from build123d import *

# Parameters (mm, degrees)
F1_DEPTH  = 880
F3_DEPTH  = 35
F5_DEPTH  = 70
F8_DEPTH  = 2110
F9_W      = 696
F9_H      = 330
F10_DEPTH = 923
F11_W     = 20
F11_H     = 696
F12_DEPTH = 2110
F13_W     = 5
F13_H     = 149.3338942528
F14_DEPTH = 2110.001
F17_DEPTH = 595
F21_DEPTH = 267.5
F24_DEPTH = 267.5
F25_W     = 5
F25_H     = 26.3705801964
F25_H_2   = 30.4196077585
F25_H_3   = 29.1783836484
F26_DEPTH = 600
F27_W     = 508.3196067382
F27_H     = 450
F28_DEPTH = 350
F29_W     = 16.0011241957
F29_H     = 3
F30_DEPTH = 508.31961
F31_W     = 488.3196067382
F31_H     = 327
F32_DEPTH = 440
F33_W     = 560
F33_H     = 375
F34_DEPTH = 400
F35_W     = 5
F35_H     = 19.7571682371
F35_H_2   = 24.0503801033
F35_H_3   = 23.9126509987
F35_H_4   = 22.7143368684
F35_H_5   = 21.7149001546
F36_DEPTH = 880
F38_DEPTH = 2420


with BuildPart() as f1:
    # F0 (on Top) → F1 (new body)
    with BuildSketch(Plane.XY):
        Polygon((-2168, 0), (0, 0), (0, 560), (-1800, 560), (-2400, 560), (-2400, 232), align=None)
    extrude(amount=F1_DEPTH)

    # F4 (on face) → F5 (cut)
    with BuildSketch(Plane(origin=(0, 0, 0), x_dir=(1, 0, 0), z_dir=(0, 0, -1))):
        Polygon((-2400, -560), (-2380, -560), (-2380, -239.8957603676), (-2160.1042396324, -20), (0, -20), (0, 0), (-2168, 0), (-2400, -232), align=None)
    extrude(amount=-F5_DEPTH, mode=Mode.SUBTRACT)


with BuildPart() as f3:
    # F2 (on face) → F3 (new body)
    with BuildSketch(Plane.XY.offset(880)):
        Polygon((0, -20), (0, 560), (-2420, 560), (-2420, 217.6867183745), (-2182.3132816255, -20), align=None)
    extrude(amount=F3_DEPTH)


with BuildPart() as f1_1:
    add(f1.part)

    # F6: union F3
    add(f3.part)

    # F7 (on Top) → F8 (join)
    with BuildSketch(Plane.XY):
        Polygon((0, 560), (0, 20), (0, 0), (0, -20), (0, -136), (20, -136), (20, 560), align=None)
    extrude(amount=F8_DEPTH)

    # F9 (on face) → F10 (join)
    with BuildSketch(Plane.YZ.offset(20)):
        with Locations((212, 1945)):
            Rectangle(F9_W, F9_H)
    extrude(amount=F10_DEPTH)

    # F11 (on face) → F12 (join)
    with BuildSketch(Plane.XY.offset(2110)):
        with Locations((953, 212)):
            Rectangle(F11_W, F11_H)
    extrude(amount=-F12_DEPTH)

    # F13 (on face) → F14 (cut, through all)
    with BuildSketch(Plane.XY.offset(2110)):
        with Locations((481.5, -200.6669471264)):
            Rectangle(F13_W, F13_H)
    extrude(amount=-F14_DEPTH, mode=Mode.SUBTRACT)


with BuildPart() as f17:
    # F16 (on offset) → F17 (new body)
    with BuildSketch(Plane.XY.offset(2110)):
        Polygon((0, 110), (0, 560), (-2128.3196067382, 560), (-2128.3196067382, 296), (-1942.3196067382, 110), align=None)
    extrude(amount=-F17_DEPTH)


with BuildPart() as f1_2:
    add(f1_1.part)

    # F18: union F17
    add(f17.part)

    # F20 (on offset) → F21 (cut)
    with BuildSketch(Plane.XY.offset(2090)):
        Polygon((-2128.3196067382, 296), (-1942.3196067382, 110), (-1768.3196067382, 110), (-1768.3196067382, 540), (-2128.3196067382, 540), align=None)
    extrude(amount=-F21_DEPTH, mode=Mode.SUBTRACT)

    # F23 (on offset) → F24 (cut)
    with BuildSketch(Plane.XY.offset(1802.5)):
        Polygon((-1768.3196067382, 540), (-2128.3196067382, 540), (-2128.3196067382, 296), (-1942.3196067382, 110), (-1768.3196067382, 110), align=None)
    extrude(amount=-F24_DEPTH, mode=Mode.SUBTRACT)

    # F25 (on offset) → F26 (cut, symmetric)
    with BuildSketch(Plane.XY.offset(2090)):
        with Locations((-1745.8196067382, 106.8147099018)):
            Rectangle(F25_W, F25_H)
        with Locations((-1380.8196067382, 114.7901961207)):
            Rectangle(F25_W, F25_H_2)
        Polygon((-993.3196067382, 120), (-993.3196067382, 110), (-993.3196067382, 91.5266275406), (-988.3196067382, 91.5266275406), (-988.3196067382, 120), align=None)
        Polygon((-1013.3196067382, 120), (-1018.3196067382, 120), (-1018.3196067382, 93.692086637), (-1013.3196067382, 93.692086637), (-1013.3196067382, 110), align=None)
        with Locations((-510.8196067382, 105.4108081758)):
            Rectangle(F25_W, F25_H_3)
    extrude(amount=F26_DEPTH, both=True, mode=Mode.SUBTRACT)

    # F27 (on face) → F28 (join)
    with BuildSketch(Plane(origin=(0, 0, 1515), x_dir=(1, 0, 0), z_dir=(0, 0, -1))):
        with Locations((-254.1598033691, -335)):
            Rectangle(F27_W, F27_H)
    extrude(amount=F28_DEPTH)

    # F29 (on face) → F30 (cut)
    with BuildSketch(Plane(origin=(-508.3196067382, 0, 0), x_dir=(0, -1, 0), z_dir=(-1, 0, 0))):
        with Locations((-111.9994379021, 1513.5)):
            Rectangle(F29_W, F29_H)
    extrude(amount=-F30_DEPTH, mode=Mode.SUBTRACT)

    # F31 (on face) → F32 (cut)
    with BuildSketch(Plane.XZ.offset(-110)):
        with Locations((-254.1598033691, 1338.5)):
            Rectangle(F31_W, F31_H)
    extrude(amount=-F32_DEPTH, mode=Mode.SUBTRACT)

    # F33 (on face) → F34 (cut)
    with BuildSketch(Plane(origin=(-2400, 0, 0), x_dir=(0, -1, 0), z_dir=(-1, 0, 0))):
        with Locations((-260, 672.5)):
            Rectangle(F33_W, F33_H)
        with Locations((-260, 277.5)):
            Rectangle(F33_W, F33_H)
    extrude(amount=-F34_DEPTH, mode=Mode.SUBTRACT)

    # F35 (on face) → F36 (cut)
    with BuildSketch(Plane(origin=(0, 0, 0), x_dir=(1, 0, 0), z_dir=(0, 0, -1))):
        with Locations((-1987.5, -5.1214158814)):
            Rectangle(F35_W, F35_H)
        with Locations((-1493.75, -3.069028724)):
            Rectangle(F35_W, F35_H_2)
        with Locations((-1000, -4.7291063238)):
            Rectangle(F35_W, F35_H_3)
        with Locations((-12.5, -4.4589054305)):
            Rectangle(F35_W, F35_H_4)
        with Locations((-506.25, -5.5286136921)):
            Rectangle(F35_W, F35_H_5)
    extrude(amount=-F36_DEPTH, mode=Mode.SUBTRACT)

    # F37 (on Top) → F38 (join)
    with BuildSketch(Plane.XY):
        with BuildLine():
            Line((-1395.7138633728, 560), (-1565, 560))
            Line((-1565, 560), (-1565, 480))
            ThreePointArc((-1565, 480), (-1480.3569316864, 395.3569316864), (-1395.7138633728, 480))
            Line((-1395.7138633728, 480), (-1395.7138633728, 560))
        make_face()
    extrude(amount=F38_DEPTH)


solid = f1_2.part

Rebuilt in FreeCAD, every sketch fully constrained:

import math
import FreeCAD as App
import Part
import Sketcher

V = App.Vector
Q = App.Units.Quantity

doc = App.newDocument("Part")
body = doc.addObject("PartDesign::Body", "Body")

# Sketch on XY plane
sketch1 = body.newObject("Sketcher::SketchObject", "Sketch")
sketch1.AttachmentSupport = (doc.getObject("XY_Plane"), [""])
sketch1.MapMode = "FlatFace"
sketch1.addGeometry(Part.LineSegment(V(-2168, 0, 0), V(0, 0, 0)), False)
sketch1.addGeometry(Part.LineSegment(V(0, 0, 0), V(0, 560, 0)), False)
sketch1.addGeometry(Part.LineSegment(V(0, 560, 0), V(-2400, 560, 0)), False)
sketch1.addGeometry(Part.LineSegment(V(-2400, 560, 0), V(-2400, 232, 0)), False)
sketch1.addGeometry(Part.LineSegment(V(-2400, 232, 0), V(-2168, 0, 0)), False)
sketch1.addConstraint(Sketcher.Constraint("Coincident", 0, 2, 1, 1))
sketch1.addConstraint(Sketcher.Constraint("Coincident", 1, 2, 2, 1))
sketch1.addConstraint(Sketcher.Constraint("Coincident", 2, 2, 3, 1))
sketch1.addConstraint(Sketcher.Constraint("Coincident", 3, 2, 4, 1))
sketch1.addConstraint(Sketcher.Constraint("Coincident", 4, 2, 0, 1))
sketch1.addConstraint(Sketcher.Constraint("Horizontal", 0))
sketch1.addConstraint(Sketcher.Constraint("Vertical", 1))
sketch1.addConstraint(Sketcher.Constraint("Horizontal", 2))
sketch1.addConstraint(Sketcher.Constraint("Vertical", 3))
sketch1.addConstraint(Sketcher.Constraint("Coincident", 0, 2, -1, 1))
sketch1.addConstraint(Sketcher.Constraint("DistanceX", 0, 1, 0, 2, 2168.0))
sketch1.addConstraint(Sketcher.Constraint("DistanceX", 2, 2, 2, 1, 2400.0))
sketch1.addConstraint(Sketcher.Constraint("DistanceY", 1, 1, 1, 2, 560.0))
sketch1.addConstraint(Sketcher.Constraint("DistanceY", 3, 2, 3, 1, 328.0))
pad1 = body.newObject("PartDesign::Pad", "Pad")
pad1.Profile = sketch1
pad1.Length = 880

# Sketch on XY plane
sketch2 = body.newObject("Sketcher::SketchObject", "Sketch001")
sketch2.AttachmentSupport = (doc.getObject("XY_Plane"), [""])
sketch2.MapMode = "FlatFace"
sketch2.addGeometry(Part.LineSegment(V(-2400, 560, 0), V(-2380, 560, 0)), False)
sketch2.addGeometry(Part.LineSegment(V(-2380, 560, 0), V(-2380, 240, 0)), False)
sketch2.addGeometry(Part.LineSegment(V(-2380, 240, 0), V(-2160, 20, 0)), False)
sketch2.addGeometry(Part.LineSegment(V(-2160, 20, 0), V(0, 20, 0)), False)
sketch2.addGeometry(Part.LineSegment(V(0, 20, 0), V(0, 0, 0)), False)
sketch2.addGeometry(Part.LineSegment(V(0, 0, 0), V(-2168, 0, 0)), False)
sketch2.addGeometry(Part.LineSegment(V(-2168, 0, 0), V(-2400, 232, 0)), False)
sketch2.addGeometry(Part.LineSegment(V(-2400, 232, 0), V(-2400, 560, 0)), False)
sketch2.addConstraint(Sketcher.Constraint("Coincident", 0, 2, 1, 1))
sketch2.addConstraint(Sketcher.Constraint("Coincident", 1, 2, 2, 1))
sketch2.addConstraint(Sketcher.Constraint("Coincident", 2, 2, 3, 1))
sketch2.addConstraint(Sketcher.Constraint("Coincident", 3, 2, 4, 1))
sketch2.addConstraint(Sketcher.Constraint("Coincident", 4, 2, 5, 1))
sketch2.addConstraint(Sketcher.Constraint("Coincident", 5, 2, 6, 1))
sketch2.addConstraint(Sketcher.Constraint("Coincident", 6, 2, 7, 1))
sketch2.addConstraint(Sketcher.Constraint("Coincident", 7, 2, 0, 1))
sketch2.addConstraint(Sketcher.Constraint("Horizontal", 0))
sketch2.addConstraint(Sketcher.Constraint("Vertical", 1))
sketch2.addConstraint(Sketcher.Constraint("Horizontal", 3))
sketch2.addConstraint(Sketcher.Constraint("Vertical", 4))
sketch2.addConstraint(Sketcher.Constraint("Horizontal", 5))
sketch2.addConstraint(Sketcher.Constraint("Vertical", 7))
sketch2.addConstraint(Sketcher.Constraint("Coincident", 4, 2, -1, 1))
sketch2.addConstraint(Sketcher.Constraint("Parallel", 2, 6))
sketch2.addConstraint(Sketcher.Constraint("Equal", 0, 4))
sketch2.addConstraint(Sketcher.Constraint("DistanceX", 0, 1, 0, 2, 20.0))
sketch2.addConstraint(Sketcher.Constraint("DistanceX", 5, 2, 5, 1, 2168.0))
sketch2.addConstraint(Sketcher.Constraint("DistanceY", 7, 1, 7, 2, 328.0))
sketch2.addConstraint(Sketcher.Constraint("Angle", 2, Q("-45 deg")))
sketch2.addConstraint(Sketcher.Constraint("DistanceX", 0, 2, -1, 1, 2380.0))
sketch2.addConstraint(Sketcher.Constraint("DistanceX", 3, 1, 3, 2, 2160.10424))
pocket1 = body.newObject("PartDesign::Pocket", "Pocket")
pocket1.Profile = sketch2
pocket1.Length = 70
pocket1.Reversed = True
body2 = doc.addObject("PartDesign::Body", "Body001")

# Sketch on XY plane
sketch3 = body2.newObject("Sketcher::SketchObject", "Sketch002")
sketch3.AttachmentSupport = (doc.getObject("XY_Plane001"), [""])
sketch3.MapMode = "FlatFace"
sketch3.AttachmentOffset = App.Placement(V(0, 0, 880), App.Rotation())
sketch3.addGeometry(Part.LineSegment(V(0, -20, 0), V(0, 560, 0)), False)
sketch3.addGeometry(Part.LineSegment(V(0, 560, 0), V(-2420, 560, 0)), False)
sketch3.addGeometry(Part.LineSegment(V(-2420, 560, 0), V(-2420, 218, 0)), False)
sketch3.addGeometry(Part.LineSegment(V(-2420, 218, 0), V(-2182, -20, 0)), False)
sketch3.addGeometry(Part.LineSegment(V(-2182, -20, 0), V(0, -20, 0)), False)
sketch3.addConstraint(Sketcher.Constraint("Coincident", 0, 2, 1, 1))
sketch3.addConstraint(Sketcher.Constraint("Coincident", 1, 2, 2, 1))
sketch3.addConstraint(Sketcher.Constraint("Coincident", 2, 2, 3, 1))
sketch3.addConstraint(Sketcher.Constraint("Coincident", 3, 2, 4, 1))
sketch3.addConstraint(Sketcher.Constraint("Coincident", 4, 2, 0, 1))
sketch3.addConstraint(Sketcher.Constraint("Vertical", 0))
sketch3.addConstraint(Sketcher.Constraint("Horizontal", 1))
sketch3.addConstraint(Sketcher.Constraint("Vertical", 2))
sketch3.addConstraint(Sketcher.Constraint("Horizontal", 4))
sketch3.addConstraint(Sketcher.Constraint("PointOnObject", 0, 2, -2))
sketch3.addConstraint(Sketcher.Constraint("DistanceX", 1, 2, 1, 1, 2420.0))
sketch3.addConstraint(Sketcher.Constraint("DistanceY", 0, 1, 0, 2, 580.0))
sketch3.addConstraint(Sketcher.Constraint("Angle", 3, Q("-45 deg")))
sketch3.addConstraint(Sketcher.Constraint("DistanceY", -1, 1, 0, 2, 560.0))
sketch3.addConstraint(Sketcher.Constraint("DistanceX", 4, 1, 4, 2, 2182.313282))
pad2 = body2.newObject("PartDesign::Pad", "Pad001")
pad2.Profile = sketch3
pad2.Length = 35
doc.recompute()

boolean = body.newObject("PartDesign::Boolean", "Boolean")
boolean.Type = "Fuse"
boolean.addObjects([body2])

# Sketch on XY plane
sketch4 = body.newObject("Sketcher::SketchObject", "Sketch003")
sketch4.AttachmentSupport = (doc.getObject("XY_Plane"), [""])
sketch4.MapMode = "FlatFace"
sketch4.addGeometry(Part.LineSegment(V(0, 560, 0), V(0, -136, 0)), False)
sketch4.addGeometry(Part.LineSegment(V(0, -136, 0), V(20, -136, 0)), False)
sketch4.addGeometry(Part.LineSegment(V(20, -136, 0), V(20, 560, 0)), False)
sketch4.addGeometry(Part.LineSegment(V(20, 560, 0), V(0, 560, 0)), False)
sketch4.addConstraint(Sketcher.Constraint("Coincident", 0, 2, 1, 1))
sketch4.addConstraint(Sketcher.Constraint("Coincident", 1, 2, 2, 1))
sketch4.addConstraint(Sketcher.Constraint("Coincident", 2, 2, 3, 1))
sketch4.addConstraint(Sketcher.Constraint("Coincident", 3, 2, 0, 1))
sketch4.addConstraint(Sketcher.Constraint("Vertical", 0))
sketch4.addConstraint(Sketcher.Constraint("Horizontal", 1))
sketch4.addConstraint(Sketcher.Constraint("Vertical", 2))
sketch4.addConstraint(Sketcher.Constraint("Horizontal", 3))
sketch4.addConstraint(Sketcher.Constraint("PointOnObject", 0, 2, -2))
sketch4.addConstraint(Sketcher.Constraint("DistanceX", 1, 1, 1, 2, 20.0))
sketch4.addConstraint(Sketcher.Constraint("DistanceY", 0, 2, 0, 1, 696.0))
sketch4.addConstraint(Sketcher.Constraint("DistanceY", 0, 2, -1, 1, 136.0))
pad3 = body.newObject("PartDesign::Pad", "Pad002")
pad3.Profile = sketch4
pad3.Length = 2110

# Sketch on YZ plane
sketch5 = body.newObject("Sketcher::SketchObject", "Sketch004")
sketch5.AttachmentSupport = (doc.getObject("YZ_Plane"), [""])
sketch5.MapMode = "FlatFace"
sketch5.AttachmentOffset = App.Placement(V(0, 0, 20), App.Rotation())
sketch5.addGeometry(Part.LineSegment(V(-136, 2110, 0), V(-136, 1780, 0)), False)
sketch5.addGeometry(Part.LineSegment(V(-136, 1780, 0), V(560, 1780, 0)), False)
sketch5.addGeometry(Part.LineSegment(V(560, 1780, 0), V(560, 2110, 0)), False)
sketch5.addGeometry(Part.LineSegment(V(560, 2110, 0), V(-136, 2110, 0)), False)
sketch5.addConstraint(Sketcher.Constraint("Coincident", 0, 2, 1, 1))
sketch5.addConstraint(Sketcher.Constraint("Coincident", 1, 2, 2, 1))
sketch5.addConstraint(Sketcher.Constraint("Coincident", 2, 2, 3, 1))
sketch5.addConstraint(Sketcher.Constraint("Coincident", 3, 2, 0, 1))
sketch5.addConstraint(Sketcher.Constraint("Vertical", 0))
sketch5.addConstraint(Sketcher.Constraint("Horizontal", 1))
sketch5.addConstraint(Sketcher.Constraint("Vertical", 2))
sketch5.addConstraint(Sketcher.Constraint("Horizontal", 3))
sketch5.addConstraint(Sketcher.Constraint("DistanceX", 1, 1, 1, 2, 696.0))
sketch5.addConstraint(Sketcher.Constraint("DistanceY", 0, 2, 0, 1, 330.0))
sketch5.addConstraint(Sketcher.Constraint("DistanceX", 0, 2, -1, 1, 136.0))
sketch5.addConstraint(Sketcher.Constraint("DistanceY", -1, 1, 0, 2, 1780.0))
pad4 = body.newObject("PartDesign::Pad", "Pad003")
pad4.Profile = sketch5
pad4.Length = 923

# Sketch on XY plane
sketch6 = body.newObject("Sketcher::SketchObject", "Sketch005")
sketch6.AttachmentSupport = (doc.getObject("XY_Plane"), [""])
sketch6.MapMode = "FlatFace"
sketch6.AttachmentOffset = App.Placement(V(0, 0, 2110), App.Rotation())
sketch6.addGeometry(Part.LineSegment(V(943, 560, 0), V(943, -136, 0)), False)
sketch6.addGeometry(Part.LineSegment(V(943, -136, 0), V(963, -136, 0)), False)
sketch6.addGeometry(Part.LineSegment(V(963, -136, 0), V(963, 560, 0)), False)
sketch6.addGeometry(Part.LineSegment(V(963, 560, 0), V(943, 560, 0)), False)
sketch6.addConstraint(Sketcher.Constraint("Coincident", 0, 2, 1, 1))
sketch6.addConstraint(Sketcher.Constraint("Coincident", 1, 2, 2, 1))
sketch6.addConstraint(Sketcher.Constraint("Coincident", 2, 2, 3, 1))
sketch6.addConstraint(Sketcher.Constraint("Coincident", 3, 2, 0, 1))
sketch6.addConstraint(Sketcher.Constraint("Vertical", 0))
sketch6.addConstraint(Sketcher.Constraint("Horizontal", 1))
sketch6.addConstraint(Sketcher.Constraint("Vertical", 2))
sketch6.addConstraint(Sketcher.Constraint("Horizontal", 3))
sketch6.addConstraint(Sketcher.Constraint("DistanceX", 1, 1, 1, 2, 20.0))
sketch6.addConstraint(Sketcher.Constraint("DistanceY", 0, 2, 0, 1, 696.0))
sketch6.addConstraint(Sketcher.Constraint("DistanceX", -1, 1, 0, 2, 943.0))
sketch6.addConstraint(Sketcher.Constraint("DistanceY", 0, 2, -1, 1, 136.0))
pad5 = body.newObject("PartDesign::Pad", "Pad004")
pad5.Profile = sketch6
pad5.Length = 2110
pad5.Reversed = True

# Sketch on XY plane
sketch7 = body.newObject("Sketcher::SketchObject", "Sketch006")
sketch7.AttachmentSupport = (doc.getObject("XY_Plane"), [""])
sketch7.MapMode = "FlatFace"
sketch7.AttachmentOffset = App.Placement(V(0, 0, 2110), App.Rotation())
sketch7.addGeometry(Part.LineSegment(V(479, -126, 0), V(479, -275, 0)), False)
sketch7.addGeometry(Part.LineSegment(V(479, -275, 0), V(484, -275, 0)), False)
sketch7.addGeometry(Part.LineSegment(V(484, -275, 0), V(484, -126, 0)), False)
sketch7.addGeometry(Part.LineSegment(V(484, -126, 0), V(479, -126, 0)), False)
sketch7.addConstraint(Sketcher.Constraint("Coincident", 0, 2, 1, 1))
sketch7.addConstraint(Sketcher.Constraint("Coincident", 1, 2, 2, 1))
sketch7.addConstraint(Sketcher.Constraint("Coincident", 2, 2, 3, 1))
sketch7.addConstraint(Sketcher.Constraint("Coincident", 3, 2, 0, 1))
sketch7.addConstraint(Sketcher.Constraint("Vertical", 0))
sketch7.addConstraint(Sketcher.Constraint("Horizontal", 1))
sketch7.addConstraint(Sketcher.Constraint("Vertical", 2))
sketch7.addConstraint(Sketcher.Constraint("Horizontal", 3))
sketch7.addConstraint(Sketcher.Constraint("DistanceX", 1, 1, 1, 2, 5.0))
sketch7.addConstraint(Sketcher.Constraint("DistanceX", -1, 1, 0, 2, 479.0))
sketch7.addConstraint(Sketcher.Constraint("DistanceY", 2, 2, -1, 1, 126.0))
sketch7.addConstraint(Sketcher.Constraint("DistanceY", 0, 2, 0, 1, 149.333894))
pocket2 = body.newObject("PartDesign::Pocket", "Pocket001")
pocket2.Profile = sketch7
pocket2.Type = "ThroughAll"
body3 = doc.addObject("PartDesign::Body", "Body002")

# Sketch on XY plane
sketch8 = body3.newObject("Sketcher::SketchObject", "Sketch007")
sketch8.AttachmentSupport = (doc.getObject("XY_Plane002"), [""])
sketch8.MapMode = "FlatFace"
sketch8.AttachmentOffset = App.Placement(V(0, 0, 2110), App.Rotation())
sketch8.addGeometry(Part.LineSegment(V(0, 110, 0), V(0, 560, 0)), False)
sketch8.addGeometry(Part.LineSegment(V(0, 560, 0), V(-2128, 560, 0)), False)
sketch8.addGeometry(Part.LineSegment(V(-2128, 560, 0), V(-2128, 296, 0)), False)
sketch8.addGeometry(Part.LineSegment(V(-2128, 296, 0), V(-1942, 110, 0)), False)
sketch8.addGeometry(Part.LineSegment(V(-1942, 110, 0), V(0, 110, 0)), False)
sketch8.addConstraint(Sketcher.Constraint("Coincident", 0, 2, 1, 1))
sketch8.addConstraint(Sketcher.Constraint("Coincident", 1, 2, 2, 1))
sketch8.addConstraint(Sketcher.Constraint("Coincident", 2, 2, 3, 1))
sketch8.addConstraint(Sketcher.Constraint("Coincident", 3, 2, 4, 1))
sketch8.addConstraint(Sketcher.Constraint("Coincident", 4, 2, 0, 1))
sketch8.addConstraint(Sketcher.Constraint("Vertical", 0))
sketch8.addConstraint(Sketcher.Constraint("Horizontal", 1))
sketch8.addConstraint(Sketcher.Constraint("Vertical", 2))
sketch8.addConstraint(Sketcher.Constraint("Horizontal", 4))
sketch8.addConstraint(Sketcher.Constraint("PointOnObject", 0, 2, -2))
sketch8.addConstraint(Sketcher.Constraint("DistanceY", 0, 1, 0, 2, 450.0))
sketch8.addConstraint(Sketcher.Constraint("DistanceY", 2, 2, 2, 1, 264.0))
sketch8.addConstraint(Sketcher.Constraint("Angle", 3, Q("-45 deg")))
sketch8.addConstraint(Sketcher.Constraint("DistanceY", -1, 1, 0, 2, 560.0))
sketch8.addConstraint(Sketcher.Constraint("DistanceX", 1, 2, 1, 1, 2128.319607))
pad6 = body3.newObject("PartDesign::Pad", "Pad005")
pad6.Profile = sketch8
pad6.Length = 595
pad6.Reversed = True
doc.recompute()

boolean2 = body.newObject("PartDesign::Boolean", "Boolean001")
boolean2.Type = "Fuse"
boolean2.addObjects([body3])

# Sketch on XY plane
sketch9 = body.newObject("Sketcher::SketchObject", "Sketch008")
sketch9.AttachmentSupport = (doc.getObject("XY_Plane"), [""])
sketch9.MapMode = "FlatFace"
sketch9.AttachmentOffset = App.Placement(V(0, 0, 2090), App.Rotation())
sketch9.addGeometry(Part.LineSegment(V(-2128, 296, 0), V(-1942, 110, 0)), False)
sketch9.addGeometry(Part.LineSegment(V(-1942, 110, 0), V(-1768, 110, 0)), False)
sketch9.addGeometry(Part.LineSegment(V(-1768, 110, 0), V(-1768, 540, 0)), False)
sketch9.addGeometry(Part.LineSegment(V(-1768, 540, 0), V(-2128, 540, 0)), False)
sketch9.addGeometry(Part.LineSegment(V(-2128, 540, 0), V(-2128, 296, 0)), False)
sketch9.addConstraint(Sketcher.Constraint("Coincident", 0, 2, 1, 1))
sketch9.addConstraint(Sketcher.Constraint("Coincident", 1, 2, 2, 1))
sketch9.addConstraint(Sketcher.Constraint("Coincident", 2, 2, 3, 1))
sketch9.addConstraint(Sketcher.Constraint("Coincident", 3, 2, 4, 1))
sketch9.addConstraint(Sketcher.Constraint("Coincident", 4, 2, 0, 1))
sketch9.addConstraint(Sketcher.Constraint("Horizontal", 1))
sketch9.addConstraint(Sketcher.Constraint("Vertical", 2))
sketch9.addConstraint(Sketcher.Constraint("Horizontal", 3))
sketch9.addConstraint(Sketcher.Constraint("Vertical", 4))
sketch9.addConstraint(Sketcher.Constraint("DistanceX", 1, 1, 1, 2, 174.0))
sketch9.addConstraint(Sketcher.Constraint("DistanceX", 3, 2, 3, 1, 360.0))
sketch9.addConstraint(Sketcher.Constraint("DistanceY", 2, 1, 2, 2, 430.0))
sketch9.addConstraint(Sketcher.Constraint("DistanceY", 4, 2, 4, 1, 244.0))
sketch9.addConstraint(Sketcher.Constraint("DistanceY", -1, 1, 0, 2, 110.0))
sketch9.addConstraint(Sketcher.Constraint("DistanceX", 0, 2, -1, 1, 1942.319607))
pocket3 = body.newObject("PartDesign::Pocket", "Pocket002")
pocket3.Profile = sketch9
pocket3.Length = 267.5

# Sketch on XY plane
sketch10 = body.newObject("Sketcher::SketchObject", "Sketch009")
sketch10.AttachmentSupport = (doc.getObject("XY_Plane"), [""])
sketch10.MapMode = "FlatFace"
sketch10.AttachmentOffset = App.Placement(V(0, 0, 1802.5), App.Rotation())
sketch10.addGeometry(Part.LineSegment(V(-1768, 540, 0), V(-2128, 540, 0)), False)
sketch10.addGeometry(Part.LineSegment(V(-2128, 540, 0), V(-2128, 296, 0)), False)
sketch10.addGeometry(Part.LineSegment(V(-2128, 296, 0), V(-1942, 110, 0)), False)
sketch10.addGeometry(Part.LineSegment(V(-1942, 110, 0), V(-1768, 110, 0)), False)
sketch10.addGeometry(Part.LineSegment(V(-1768, 110, 0), V(-1768, 540, 0)), False)
sketch10.addConstraint(Sketcher.Constraint("Coincident", 0, 2, 1, 1))
sketch10.addConstraint(Sketcher.Constraint("Coincident", 1, 2, 2, 1))
sketch10.addConstraint(Sketcher.Constraint("Coincident", 2, 2, 3, 1))
sketch10.addConstraint(Sketcher.Constraint("Coincident", 3, 2, 4, 1))
sketch10.addConstraint(Sketcher.Constraint("Coincident", 4, 2, 0, 1))
sketch10.addConstraint(Sketcher.Constraint("Horizontal", 0))
sketch10.addConstraint(Sketcher.Constraint("Vertical", 1))
sketch10.addConstraint(Sketcher.Constraint("Horizontal", 3))
sketch10.addConstraint(Sketcher.Constraint("Vertical", 4))
sketch10.addConstraint(Sketcher.Constraint("DistanceX", 0, 2, 0, 1, 360.0))
sketch10.addConstraint(Sketcher.Constraint("DistanceX", 3, 1, 3, 2, 174.0))
sketch10.addConstraint(Sketcher.Constraint("DistanceY", 1, 2, 1, 1, 244.0))
sketch10.addConstraint(Sketcher.Constraint("DistanceY", 4, 1, 4, 2, 430.0))
sketch10.addConstraint(Sketcher.Constraint("DistanceY", -1, 1, 0, 2, 540.0))
sketch10.addConstraint(Sketcher.Constraint("DistanceX", 0, 2, -1, 1, 2128.319607))
pocket4 = body.newObject("PartDesign::Pocket", "Pocket003")
pocket4.Profile = sketch10
pocket4.Length = 267.5

# Sketch on XY plane
sketch11 = body.newObject("Sketcher::SketchObject", "Sketch010")
sketch11.AttachmentSupport = (doc.getObject("XY_Plane"), [""])
sketch11.MapMode = "FlatFace"
sketch11.AttachmentOffset = App.Placement(V(0, 0, 2090), App.Rotation())
sketch11.addGeometry(Part.LineSegment(V(-1748.3, 120, 0), V(-1748.3, 93.6, 0)), False)
sketch11.addGeometry(Part.LineSegment(V(-1748.3, 93.6, 0), V(-1743.3, 93.6, 0)), False)
sketch11.addGeometry(Part.LineSegment(V(-1743.3, 93.6, 0), V(-1743.3, 120, 0)), False)
sketch11.addGeometry(Part.LineSegment(V(-1743.3, 120, 0), V(-1748.3, 120, 0)), False)
sketch11.addGeometry(Part.LineSegment(V(-1383.3, 130, 0), V(-1383.3, 99.6, 0)), False)
sketch11.addGeometry(Part.LineSegment(V(-1383.3, 99.6, 0), V(-1378.3, 99.6, 0)), False)
sketch11.addGeometry(Part.LineSegment(V(-1378.3, 99.6, 0), V(-1378.3, 130, 0)), False)
sketch11.addGeometry(Part.LineSegment(V(-1378.3, 130, 0), V(-1383.3, 130, 0)), False)
sketch11.addGeometry(Part.LineSegment(V(-993.3, 120, 0), V(-993.3, 91.5, 0)), False)
sketch11.addGeometry(Part.LineSegment(V(-993.3, 91.5, 0), V(-988.3, 91.5, 0)), False)
sketch11.addGeometry(Part.LineSegment(V(-988.3, 91.5, 0), V(-988.3, 120, 0)), False)
sketch11.addGeometry(Part.LineSegment(V(-988.3, 120, 0), V(-993.3, 120, 0)), False)
sketch11.addGeometry(Part.LineSegment(V(-1013.3, 120, 0), V(-1018.3, 120, 0)), False)
sketch11.addGeometry(Part.LineSegment(V(-1018.3, 120, 0), V(-1018.3, 93.7, 0)), False)
sketch11.addGeometry(Part.LineSegment(V(-1018.3, 93.7, 0), V(-1013.3, 93.7, 0)), False)
sketch11.addGeometry(Part.LineSegment(V(-1013.3, 93.7, 0), V(-1013.3, 120, 0)), False)
sketch11.addGeometry(Part.LineSegment(V(-513.3, 120, 0), V(-513.3, 90.8, 0)), False)
sketch11.addGeometry(Part.LineSegment(V(-513.3, 90.8, 0), V(-508.3, 90.8, 0)), False)
sketch11.addGeometry(Part.LineSegment(V(-508.3, 90.8, 0), V(-508.3, 120, 0)), False)
sketch11.addGeometry(Part.LineSegment(V(-508.3, 120, 0), V(-513.3, 120, 0)), False)
sketch11.addConstraint(Sketcher.Constraint("Coincident", 0, 2, 1, 1))
sketch11.addConstraint(Sketcher.Constraint("Coincident", 1, 2, 2, 1))
sketch11.addConstraint(Sketcher.Constraint("Coincident", 2, 2, 3, 1))
sketch11.addConstraint(Sketcher.Constraint("Coincident", 3, 2, 0, 1))
sketch11.addConstraint(Sketcher.Constraint("Coincident", 4, 2, 5, 1))
sketch11.addConstraint(Sketcher.Constraint("Coincident", 5, 2, 6, 1))
sketch11.addConstraint(Sketcher.Constraint("Coincident", 6, 2, 7, 1))
sketch11.addConstraint(Sketcher.Constraint("Coincident", 7, 2, 4, 1))
sketch11.addConstraint(Sketcher.Constraint("Coincident", 8, 2, 9, 1))
sketch11.addConstraint(Sketcher.Constraint("Coincident", 9, 2, 10, 1))
sketch11.addConstraint(Sketcher.Constraint("Coincident", 10, 2, 11, 1))
sketch11.addConstraint(Sketcher.Constraint("Coincident", 11, 2, 8, 1))
sketch11.addConstraint(Sketcher.Constraint("Coincident", 12, 2, 13, 1))
sketch11.addConstraint(Sketcher.Constraint("Coincident", 13, 2, 14, 1))
sketch11.addConstraint(Sketcher.Constraint("Coincident", 14, 2, 15, 1))
sketch11.addConstraint(Sketcher.Constraint("Coincident", 15, 2, 12, 1))
sketch11.addConstraint(Sketcher.Constraint("Coincident", 16, 2, 17, 1))
sketch11.addConstraint(Sketcher.Constraint("Coincident", 17, 2, 18, 1))
sketch11.addConstraint(Sketcher.Constraint("Coincident", 18, 2, 19, 1))
sketch11.addConstraint(Sketcher.Constraint("Coincident", 19, 2, 16, 1))
sketch11.addConstraint(Sketcher.Constraint("Vertical", 0))
sketch11.addConstraint(Sketcher.Constraint("Horizontal", 1))
sketch11.addConstraint(Sketcher.Constraint("Vertical", 2))
sketch11.addConstraint(Sketcher.Constraint("Horizontal", 3))
sketch11.addConstraint(Sketcher.Constraint("Vertical", 4))
sketch11.addConstraint(Sketcher.Constraint("Horizontal", 5))
sketch11.addConstraint(Sketcher.Constraint("Vertical", 6))
sketch11.addConstraint(Sketcher.Constraint("Horizontal", 7))
sketch11.addConstraint(Sketcher.Constraint("Vertical", 8))
sketch11.addConstraint(Sketcher.Constraint("Horizontal", 9))
sketch11.addConstraint(Sketcher.Constraint("Vertical", 10))
sketch11.addConstraint(Sketcher.Constraint("Horizontal", 11))
sketch11.addConstraint(Sketcher.Constraint("Horizontal", 12))
sketch11.addConstraint(Sketcher.Constraint("Vertical", 13))
sketch11.addConstraint(Sketcher.Constraint("Horizontal", 14))
sketch11.addConstraint(Sketcher.Constraint("Vertical", 15))
sketch11.addConstraint(Sketcher.Constraint("Vertical", 16))
sketch11.addConstraint(Sketcher.Constraint("Horizontal", 17))
sketch11.addConstraint(Sketcher.Constraint("Vertical", 18))
sketch11.addConstraint(Sketcher.Constraint("Horizontal", 19))
sketch11.addConstraint(Sketcher.Constraint("Horizontal", 3, 2, 10, 2))
sketch11.addConstraint(Sketcher.Constraint("Horizontal", 11, 2, 12, 2))
sketch11.addConstraint(Sketcher.Constraint("Horizontal", 15, 2, 18, 2))
sketch11.addConstraint(Sketcher.Constraint("Equal", 3, 5))
sketch11.addConstraint(Sketcher.Constraint("Equal", 7, 9))
sketch11.addConstraint(Sketcher.Constraint("Equal", 11, 12))
sketch11.addConstraint(Sketcher.Constraint("Equal", 14, 17))
sketch11.addConstraint(Sketcher.Constraint("DistanceX", 1, 1, 1, 2, 5.0))
sketch11.addConstraint(Sketcher.Constraint("DistanceY", -1, 1, 2, 2, 120.0))
sketch11.addConstraint(Sketcher.Constraint("DistanceY", -1, 1, 6, 2, 130.0))
sketch11.addConstraint(Sketcher.Constraint("DistanceX", 1, 2, 4, 2, 360.0))
sketch11.addConstraint(Sketcher.Constraint("DistanceX", 5, 2, 8, 2, 385.0))
sketch11.addConstraint(Sketcher.Constraint("DistanceX", 12, 2, 11, 2, 25.0))
sketch11.addConstraint(Sketcher.Constraint("DistanceX", 9, 2, 16, 2, 475.0))
sketch11.addConstraint(Sketcher.Constraint("DistanceY", 0, 2, 0, 1, 26.37058))
sketch11.addConstraint(Sketcher.Constraint("DistanceY", 4, 2, 4, 1, 30.419608))
sketch11.addConstraint(Sketcher.Constraint("DistanceY", 8, 2, 8, 1, 28.473372))
sketch11.addConstraint(Sketcher.Constraint("DistanceY", 13, 2, 13, 1, 26.307913))
sketch11.addConstraint(Sketcher.Constraint("DistanceY", 16, 2, 16, 1, 29.178384))
sketch11.addConstraint(Sketcher.Constraint("DistanceX", 0, 2, -1, 1, 1748.319607))
pocket5 = body.newObject("PartDesign::Pocket", "Pocket004")
pocket5.Profile = sketch11
pocket5.Length = 1200
pocket5.Midplane = True

# Sketch on XY plane
sketch12 = body.newObject("Sketcher::SketchObject", "Sketch011")
sketch12.AttachmentSupport = (doc.getObject("XY_Plane"), [""])
sketch12.MapMode = "FlatFace"
sketch12.AttachmentOffset = App.Placement(V(0, 0, 1515), App.Rotation())
sketch12.addGeometry(Part.LineSegment(V(-508, 110, 0), V(-508, 560, 0)), False)
sketch12.addGeometry(Part.LineSegment(V(-508, 560, 0), V(0, 560, 0)), False)
sketch12.addGeometry(Part.LineSegment(V(0, 560, 0), V(0, 110, 0)), False)
sketch12.addGeometry(Part.LineSegment(V(0, 110, 0), V(-508, 110, 0)), False)
sketch12.addConstraint(Sketcher.Constraint("Coincident", 0, 2, 1, 1))
sketch12.addConstraint(Sketcher.Constraint("Coincident", 1, 2, 2, 1))
sketch12.addConstraint(Sketcher.Constraint("Coincident", 2, 2, 3, 1))
sketch12.addConstraint(Sketcher.Constraint("Coincident", 3, 2, 0, 1))
sketch12.addConstraint(Sketcher.Constraint("Vertical", 0))
sketch12.addConstraint(Sketcher.Constraint("Horizontal", 1))
sketch12.addConstraint(Sketcher.Constraint("Vertical", 2))
sketch12.addConstraint(Sketcher.Constraint("Horizontal", 3))
sketch12.addConstraint(Sketcher.Constraint("PointOnObject", 1, 2, -2))
sketch12.addConstraint(Sketcher.Constraint("DistanceY", 0, 1, 0, 2, 450.0))
sketch12.addConstraint(Sketcher.Constraint("DistanceY", -1, 1, 0, 2, 560.0))
sketch12.addConstraint(Sketcher.Constraint("DistanceX", 1, 1, 1, 2, 508.319607))
pad7 = body.newObject("PartDesign::Pad", "Pad006")
pad7.Profile = sketch12
pad7.Length = 350
pad7.Reversed = True

# Sketch on YZ plane
sketch13 = body.newObject("Sketcher::SketchObject", "Sketch012")
sketch13.AttachmentSupport = (doc.getObject("YZ_Plane"), [""])
sketch13.MapMode = "FlatFace"
sketch13.AttachmentOffset = App.Placement(V(0, 0, -508.319607), App.Rotation())
sketch13.addGeometry(Part.LineSegment(V(120, 1515, 0), V(120, 1512, 0)), False)
sketch13.addGeometry(Part.LineSegment(V(120, 1512, 0), V(104, 1512, 0)), False)
sketch13.addGeometry(Part.LineSegment(V(104, 1512, 0), V(104, 1515, 0)), False)
sketch13.addGeometry(Part.LineSegment(V(104, 1515, 0), V(120, 1515, 0)), False)
sketch13.addConstraint(Sketcher.Constraint("Coincident", 0, 2, 1, 1))
sketch13.addConstraint(Sketcher.Constraint("Coincident", 1, 2, 2, 1))
sketch13.addConstraint(Sketcher.Constraint("Coincident", 2, 2, 3, 1))
sketch13.addConstraint(Sketcher.Constraint("Coincident", 3, 2, 0, 1))
sketch13.addConstraint(Sketcher.Constraint("Vertical", 0))
sketch13.addConstraint(Sketcher.Constraint("Horizontal", 1))
sketch13.addConstraint(Sketcher.Constraint("Vertical", 2))
sketch13.addConstraint(Sketcher.Constraint("Horizontal", 3))
sketch13.addConstraint(Sketcher.Constraint("DistanceY", 0, 2, 0, 1, 3.0))
sketch13.addConstraint(Sketcher.Constraint("DistanceX", -1, 1, 0, 2, 120.0))
sketch13.addConstraint(Sketcher.Constraint("DistanceY", -1, 1, 0, 2, 1512.0))
sketch13.addConstraint(Sketcher.Constraint("DistanceX", 1, 2, 1, 1, 16.001124))
pocket6 = body.newObject("PartDesign::Pocket", "Pocket005")
pocket6.Profile = sketch13
pocket6.Length = 508.31961
pocket6.Reversed = True

# Sketch on XZ plane
sketch14 = body.newObject("Sketcher::SketchObject", "Sketch013")
sketch14.AttachmentSupport = (doc.getObject("XZ_Plane"), [""])
sketch14.MapMode = "FlatFace"
sketch14.AttachmentOffset = App.Placement(V(0, 0, -110), App.Rotation())
sketch14.addGeometry(Part.LineSegment(V(-498, 1502, 0), V(-498, 1175, 0)), False)
sketch14.addGeometry(Part.LineSegment(V(-498, 1175, 0), V(-10, 1175, 0)), False)
sketch14.addGeometry(Part.LineSegment(V(-10, 1175, 0), V(-10, 1502, 0)), False)
sketch14.addGeometry(Part.LineSegment(V(-10, 1502, 0), V(-498, 1502, 0)), False)
sketch14.addConstraint(Sketcher.Constraint("Coincident", 0, 2, 1, 1))
sketch14.addConstraint(Sketcher.Constraint("Coincident", 1, 2, 2, 1))
sketch14.addConstraint(Sketcher.Constraint("Coincident", 2, 2, 3, 1))
sketch14.addConstraint(Sketcher.Constraint("Coincident", 3, 2, 0, 1))
sketch14.addConstraint(Sketcher.Constraint("Vertical", 0))
sketch14.addConstraint(Sketcher.Constraint("Horizontal", 1))
sketch14.addConstraint(Sketcher.Constraint("Vertical", 2))
sketch14.addConstraint(Sketcher.Constraint("Horizontal", 3))
sketch14.addConstraint(Sketcher.Constraint("DistanceY", 0, 2, 0, 1, 327.0))
sketch14.addConstraint(Sketcher.Constraint("DistanceY", -1, 1, 0, 2, 1175.0))
sketch14.addConstraint(Sketcher.Constraint("DistanceX", 1, 2, -1, 1, 10.0))
sketch14.addConstraint(Sketcher.Constraint("DistanceX", 1, 1, 1, 2, 488.319607))
pocket7 = body.newObject("PartDesign::Pocket", "Pocket006")
pocket7.Profile = sketch14
pocket7.Length = 440

# Sketch on YZ plane
sketch15 = body.newObject("Sketcher::SketchObject", "Sketch014")
sketch15.AttachmentSupport = (doc.getObject("YZ_Plane"), [""])
sketch15.MapMode = "FlatFace"
sketch15.AttachmentOffset = App.Placement(V(0, 0, -2400), App.Rotation())
sketch15.addGeometry(Part.LineSegment(V(540, 860, 0), V(540, 485, 0)), False)
sketch15.addGeometry(Part.LineSegment(V(540, 485, 0), V(-20, 485, 0)), False)
sketch15.addGeometry(Part.LineSegment(V(-20, 485, 0), V(-20, 860, 0)), False)
sketch15.addGeometry(Part.LineSegment(V(-20, 860, 0), V(540, 860, 0)), False)
sketch15.addGeometry(Part.LineSegment(V(540, 465, 0), V(540, 90, 0)), False)
sketch15.addGeometry(Part.LineSegment(V(540, 90, 0), V(-20, 90, 0)), False)
sketch15.addGeometry(Part.LineSegment(V(-20, 90, 0), V(-20, 465, 0)), False)
sketch15.addGeometry(Part.LineSegment(V(-20, 465, 0), V(540, 465, 0)), False)
sketch15.addConstraint(Sketcher.Constraint("Coincident", 0, 2, 1, 1))
sketch15.addConstraint(Sketcher.Constraint("Coincident", 1, 2, 2, 1))
sketch15.addConstraint(Sketcher.Constraint("Coincident", 2, 2, 3, 1))
sketch15.addConstraint(Sketcher.Constraint("Coincident", 3, 2, 0, 1))
sketch15.addConstraint(Sketcher.Constraint("Coincident", 4, 2, 5, 1))
sketch15.addConstraint(Sketcher.Constraint("Coincident", 5, 2, 6, 1))
sketch15.addConstraint(Sketcher.Constraint("Coincident", 6, 2, 7, 1))
sketch15.addConstraint(Sketcher.Constraint("Coincident", 7, 2, 4, 1))
sketch15.addConstraint(Sketcher.Constraint("Vertical", 0))
sketch15.addConstraint(Sketcher.Constraint("Horizontal", 1))
sketch15.addConstraint(Sketcher.Constraint("Vertical", 2))
sketch15.addConstraint(Sketcher.Constraint("Horizontal", 3))
sketch15.addConstraint(Sketcher.Constraint("Vertical", 4))
sketch15.addConstraint(Sketcher.Constraint("Horizontal", 5))
sketch15.addConstraint(Sketcher.Constraint("Vertical", 6))
sketch15.addConstraint(Sketcher.Constraint("Horizontal", 7))
sketch15.addConstraint(Sketcher.Constraint("Vertical", 3, 2, 4, 2))
sketch15.addConstraint(Sketcher.Constraint("Vertical", 2, 2, 5, 2))
sketch15.addConstraint(Sketcher.Constraint("Equal", 2, 4))
sketch15.addConstraint(Sketcher.Constraint("DistanceX", 1, 2, 1, 1, 560.0))
sketch15.addConstraint(Sketcher.Constraint("DistanceY", 0, 2, 0, 1, 375.0))
sketch15.addConstraint(Sketcher.Constraint("DistanceX", -1, 1, 0, 2, 540.0))
sketch15.addConstraint(Sketcher.Constraint("DistanceY", -1, 1, 0, 2, 485.0))
sketch15.addConstraint(Sketcher.Constraint("DistanceY", -1, 1, 4, 2, 90.0))
pocket8 = body.newObject("PartDesign::Pocket", "Pocket007")
pocket8.Profile = sketch15
pocket8.Length = 400
pocket8.Reversed = True

# Sketch on XY plane
sketch16 = body.newObject("Sketcher::SketchObject", "Sketch015")
sketch16.AttachmentSupport = (doc.getObject("XY_Plane"), [""])
sketch16.MapMode = "FlatFace"
sketch16.addGeometry(Part.LineSegment(V(-1990, -5, 0), V(-1990, 15, 0)), False)
sketch16.addGeometry(Part.LineSegment(V(-1990, 15, 0), V(-1985, 15, 0)), False)
sketch16.addGeometry(Part.LineSegment(V(-1985, 15, 0), V(-1985, -5, 0)), False)
sketch16.addGeometry(Part.LineSegment(V(-1985, -5, 0), V(-1990, -5, 0)), False)
sketch16.addGeometry(Part.LineSegment(V(-1496, -9, 0), V(-1496, 15, 0)), False)
sketch16.addGeometry(Part.LineSegment(V(-1496, 15, 0), V(-1491, 15, 0)), False)
sketch16.addGeometry(Part.LineSegment(V(-1491, 15, 0), V(-1491, -9, 0)), False)
sketch16.addGeometry(Part.LineSegment(V(-1491, -9, 0), V(-1496, -9, 0)), False)
sketch16.addGeometry(Part.LineSegment(V(-1002, -7, 0), V(-1002, 17, 0)), False)
sketch16.addGeometry(Part.LineSegment(V(-1002, 17, 0), V(-998, 17, 0)), False)
sketch16.addGeometry(Part.LineSegment(V(-998, 17, 0), V(-998, -7, 0)), False)
sketch16.addGeometry(Part.LineSegment(V(-998, -7, 0), V(-1002, -7, 0)), False)
sketch16.addGeometry(Part.LineSegment(V(-15, -7, 0), V(-15, 16, 0)), False)
sketch16.addGeometry(Part.LineSegment(V(-15, 16, 0), V(-10, 16, 0)), False)
sketch16.addGeometry(Part.LineSegment(V(-10, 16, 0), V(-10, -7, 0)), False)
sketch16.addGeometry(Part.LineSegment(V(-10, -7, 0), V(-15, -7, 0)), False)
sketch16.addGeometry(Part.LineSegment(V(-509, -5, 0), V(-509, 16, 0)), False)
sketch16.addGeometry(Part.LineSegment(V(-509, 16, 0), V(-504, 16, 0)), False)
sketch16.addGeometry(Part.LineSegment(V(-504, 16, 0), V(-504, -5, 0)), False)
sketch16.addGeometry(Part.LineSegment(V(-504, -5, 0), V(-509, -5, 0)), False)
sketch16.addConstraint(Sketcher.Constraint("Coincident", 0, 2, 1, 1))
sketch16.addConstraint(Sketcher.Constraint("Coincident", 1, 2, 2, 1))
sketch16.addConstraint(Sketcher.Constraint("Coincident", 2, 2, 3, 1))
sketch16.addConstraint(Sketcher.Constraint("Coincident", 3, 2, 0, 1))
sketch16.addConstraint(Sketcher.Constraint("Coincident", 4, 2, 5, 1))
sketch16.addConstraint(Sketcher.Constraint("Coincident", 5, 2, 6, 1))
sketch16.addConstraint(Sketcher.Constraint("Coincident", 6, 2, 7, 1))
sketch16.addConstraint(Sketcher.Constraint("Coincident", 7, 2, 4, 1))
sketch16.addConstraint(Sketcher.Constraint("Coincident", 8, 2, 9, 1))
sketch16.addConstraint(Sketcher.Constraint("Coincident", 9, 2, 10, 1))
sketch16.addConstraint(Sketcher.Constraint("Coincident", 10, 2, 11, 1))
sketch16.addConstraint(Sketcher.Constraint("Coincident", 11, 2, 8, 1))
sketch16.addConstraint(Sketcher.Constraint("Coincident", 12, 2, 13, 1))
sketch16.addConstraint(Sketcher.Constraint("Coincident", 13, 2, 14, 1))
sketch16.addConstraint(Sketcher.Constraint("Coincident", 14, 2, 15, 1))
sketch16.addConstraint(Sketcher.Constraint("Coincident", 15, 2, 12, 1))
sketch16.addConstraint(Sketcher.Constraint("Coincident", 16, 2, 17, 1))
sketch16.addConstraint(Sketcher.Constraint("Coincident", 17, 2, 18, 1))
sketch16.addConstraint(Sketcher.Constraint("Coincident", 18, 2, 19, 1))
sketch16.addConstraint(Sketcher.Constraint("Coincident", 19, 2, 16, 1))
sketch16.addConstraint(Sketcher.Constraint("Vertical", 0))
sketch16.addConstraint(Sketcher.Constraint("Horizontal", 1))
sketch16.addConstraint(Sketcher.Constraint("Vertical", 2))
sketch16.addConstraint(Sketcher.Constraint("Horizontal", 3))
sketch16.addConstraint(Sketcher.Constraint("Vertical", 4))
sketch16.addConstraint(Sketcher.Constraint("Horizontal", 5))
sketch16.addConstraint(Sketcher.Constraint("Vertical", 6))
sketch16.addConstraint(Sketcher.Constraint("Horizontal", 7))
sketch16.addConstraint(Sketcher.Constraint("Vertical", 8))
sketch16.addConstraint(Sketcher.Constraint("Horizontal", 9))
sketch16.addConstraint(Sketcher.Constraint("Vertical", 10))
sketch16.addConstraint(Sketcher.Constraint("Horizontal", 11))
sketch16.addConstraint(Sketcher.Constraint("Vertical", 12))
sketch16.addConstraint(Sketcher.Constraint("Horizontal", 13))
sketch16.addConstraint(Sketcher.Constraint("Vertical", 14))
sketch16.addConstraint(Sketcher.Constraint("Horizontal", 15))
sketch16.addConstraint(Sketcher.Constraint("Vertical", 16))
sketch16.addConstraint(Sketcher.Constraint("Horizontal", 17))
sketch16.addConstraint(Sketcher.Constraint("Vertical", 18))
sketch16.addConstraint(Sketcher.Constraint("Horizontal", 19))
sketch16.addConstraint(Sketcher.Constraint("Equal", 3, 5))
sketch16.addConstraint(Sketcher.Constraint("Equal", 7, 9))
sketch16.addConstraint(Sketcher.Constraint("Equal", 11, 13))
sketch16.addConstraint(Sketcher.Constraint("Equal", 15, 17))
sketch16.addConstraint(Sketcher.Constraint("DistanceX", 1, 1, 1, 2, 5.0))
sketch16.addConstraint(Sketcher.Constraint("DistanceX", 0, 2, -1, 1, 1990.0))
sketch16.addConstraint(Sketcher.Constraint("DistanceY", -1, 1, 0, 2, 15.0))
sketch16.addConstraint(Sketcher.Constraint("DistanceX", 12, 2, -1, 1, 15.0))
sketch16.addConstraint(Sketcher.Constraint("DistanceX", 8, 2, -1, 1, 1002.5))
sketch16.addConstraint(Sketcher.Constraint("DistanceX", 4, 2, -1, 1, 1496.25))
sketch16.addConstraint(Sketcher.Constraint("DistanceX", 16, 2, -1, 1, 508.75))
sketch16.addConstraint(Sketcher.Constraint("DistanceY", 16, 1, 16, 2, 21.7149))
sketch16.addConstraint(Sketcher.Constraint("DistanceY", 0, 1, 0, 2, 19.757168))
sketch16.addConstraint(Sketcher.Constraint("DistanceY", 4, 1, 4, 2, 24.05038))
sketch16.addConstraint(Sketcher.Constraint("DistanceY", 8, 1, 8, 2, 23.912651))
sketch16.addConstraint(Sketcher.Constraint("DistanceY", 12, 1, 12, 2, 22.714337))
sketch16.addConstraint(Sketcher.Constraint("DistanceY", -1, 1, 4, 2, 15.094219))
sketch16.addConstraint(Sketcher.Constraint("DistanceY", -1, 1, 8, 2, 16.685432))
sketch16.addConstraint(Sketcher.Constraint("DistanceY", 16, 2, 9, 2, 0.299368))
sketch16.addConstraint(Sketcher.Constraint("DistanceY", 12, 2, 16, 2, 0.56999))
pocket9 = body.newObject("PartDesign::Pocket", "Pocket008")
pocket9.Profile = sketch16
pocket9.Length = 880
pocket9.Reversed = True

# Sketch on XY plane
sketch17 = body.newObject("Sketcher::SketchObject", "Sketch016")
sketch17.AttachmentSupport = (doc.getObject("XY_Plane"), [""])
sketch17.MapMode = "FlatFace"
sketch17.addGeometry(Part.LineSegment(V(-1396, 560, 0), V(-1565, 560, 0)), False)
sketch17.addGeometry(Part.LineSegment(V(-1565, 560, 0), V(-1565, 480, 0)), False)
sketch17.addGeometry(Part.ArcOfCircle(Part.Circle(V(-1480, 480, 0), V(0, 0, 1), 85), math.radians(180), math.radians(360)), False)
sketch17.addGeometry(Part.LineSegment(V(-1396, 480, 0), V(-1396, 560, 0)), False)
sketch17.addConstraint(Sketcher.Constraint("Coincident", 0, 2, 1, 1))
sketch17.addConstraint(Sketcher.Constraint("Tangent", 1, 2, 2, 1))
sketch17.addConstraint(Sketcher.Constraint("Tangent", 2, 2, 3, 1))
sketch17.addConstraint(Sketcher.Constraint("Coincident", 3, 2, 0, 1))
sketch17.addConstraint(Sketcher.Constraint("Horizontal", 0))
sketch17.addConstraint(Sketcher.Constraint("Vertical", 1))
sketch17.addConstraint(Sketcher.Constraint("Vertical", 3))
sketch17.addConstraint(Sketcher.Constraint("DistanceY", 1, 2, 1, 1, 80.0))
sketch17.addConstraint(Sketcher.Constraint("DistanceY", -1, 1, 2, 3, 480.0))
sketch17.addConstraint(Sketcher.Constraint("DistanceX", 0, 2, -1, 1, 1565.0))
sketch17.addConstraint(Sketcher.Constraint("Radius", 2, 84.643068))
pad8 = body.newObject("PartDesign::Pad", "Pad007")
pad8.Profile = sketch17
pad8.Length = 2420

doc.recompute()
